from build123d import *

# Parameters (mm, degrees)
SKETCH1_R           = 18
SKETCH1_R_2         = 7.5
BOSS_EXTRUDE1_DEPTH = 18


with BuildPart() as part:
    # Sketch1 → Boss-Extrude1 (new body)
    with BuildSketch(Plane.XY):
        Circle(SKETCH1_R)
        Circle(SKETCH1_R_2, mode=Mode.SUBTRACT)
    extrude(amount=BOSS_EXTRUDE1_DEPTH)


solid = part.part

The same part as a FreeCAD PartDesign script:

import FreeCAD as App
import Part
import Sketcher

doc = App.newDocument("Part")
body = doc.addObject("PartDesign::Body", "Body")

# Sketch on XY plane
sketch1 = body.newObject("Sketcher::SketchObject", "Sketch")
sketch1.AttachmentSupport = (doc.getObject("XY_Plane"), [""])
sketch1.MapMode = "FlatFace"
sketch1.addGeometry([
    Part.Circle(App.Vector(0, 0, 0), App.Vector(0, 0, 1), 18),
    Part.Circle(App.Vector(0, 0, 0), App.Vector(0, 0, 1), 8),
], False)
sketch1.addConstraint([
    Sketcher.Constraint("Coincident", 0, 3, -1, 1),
    Sketcher.Constraint("Coincident", 1, 3, -1, 1),
    Sketcher.Constraint("Diameter", 0, 36.0),
    Sketcher.Constraint("Diameter", 1, 15.0),
])
pad1 = body.newObject("PartDesign::Pad", "Pad")
pad1.Profile = sketch1
pad1.Length = 18

doc.recompute()
